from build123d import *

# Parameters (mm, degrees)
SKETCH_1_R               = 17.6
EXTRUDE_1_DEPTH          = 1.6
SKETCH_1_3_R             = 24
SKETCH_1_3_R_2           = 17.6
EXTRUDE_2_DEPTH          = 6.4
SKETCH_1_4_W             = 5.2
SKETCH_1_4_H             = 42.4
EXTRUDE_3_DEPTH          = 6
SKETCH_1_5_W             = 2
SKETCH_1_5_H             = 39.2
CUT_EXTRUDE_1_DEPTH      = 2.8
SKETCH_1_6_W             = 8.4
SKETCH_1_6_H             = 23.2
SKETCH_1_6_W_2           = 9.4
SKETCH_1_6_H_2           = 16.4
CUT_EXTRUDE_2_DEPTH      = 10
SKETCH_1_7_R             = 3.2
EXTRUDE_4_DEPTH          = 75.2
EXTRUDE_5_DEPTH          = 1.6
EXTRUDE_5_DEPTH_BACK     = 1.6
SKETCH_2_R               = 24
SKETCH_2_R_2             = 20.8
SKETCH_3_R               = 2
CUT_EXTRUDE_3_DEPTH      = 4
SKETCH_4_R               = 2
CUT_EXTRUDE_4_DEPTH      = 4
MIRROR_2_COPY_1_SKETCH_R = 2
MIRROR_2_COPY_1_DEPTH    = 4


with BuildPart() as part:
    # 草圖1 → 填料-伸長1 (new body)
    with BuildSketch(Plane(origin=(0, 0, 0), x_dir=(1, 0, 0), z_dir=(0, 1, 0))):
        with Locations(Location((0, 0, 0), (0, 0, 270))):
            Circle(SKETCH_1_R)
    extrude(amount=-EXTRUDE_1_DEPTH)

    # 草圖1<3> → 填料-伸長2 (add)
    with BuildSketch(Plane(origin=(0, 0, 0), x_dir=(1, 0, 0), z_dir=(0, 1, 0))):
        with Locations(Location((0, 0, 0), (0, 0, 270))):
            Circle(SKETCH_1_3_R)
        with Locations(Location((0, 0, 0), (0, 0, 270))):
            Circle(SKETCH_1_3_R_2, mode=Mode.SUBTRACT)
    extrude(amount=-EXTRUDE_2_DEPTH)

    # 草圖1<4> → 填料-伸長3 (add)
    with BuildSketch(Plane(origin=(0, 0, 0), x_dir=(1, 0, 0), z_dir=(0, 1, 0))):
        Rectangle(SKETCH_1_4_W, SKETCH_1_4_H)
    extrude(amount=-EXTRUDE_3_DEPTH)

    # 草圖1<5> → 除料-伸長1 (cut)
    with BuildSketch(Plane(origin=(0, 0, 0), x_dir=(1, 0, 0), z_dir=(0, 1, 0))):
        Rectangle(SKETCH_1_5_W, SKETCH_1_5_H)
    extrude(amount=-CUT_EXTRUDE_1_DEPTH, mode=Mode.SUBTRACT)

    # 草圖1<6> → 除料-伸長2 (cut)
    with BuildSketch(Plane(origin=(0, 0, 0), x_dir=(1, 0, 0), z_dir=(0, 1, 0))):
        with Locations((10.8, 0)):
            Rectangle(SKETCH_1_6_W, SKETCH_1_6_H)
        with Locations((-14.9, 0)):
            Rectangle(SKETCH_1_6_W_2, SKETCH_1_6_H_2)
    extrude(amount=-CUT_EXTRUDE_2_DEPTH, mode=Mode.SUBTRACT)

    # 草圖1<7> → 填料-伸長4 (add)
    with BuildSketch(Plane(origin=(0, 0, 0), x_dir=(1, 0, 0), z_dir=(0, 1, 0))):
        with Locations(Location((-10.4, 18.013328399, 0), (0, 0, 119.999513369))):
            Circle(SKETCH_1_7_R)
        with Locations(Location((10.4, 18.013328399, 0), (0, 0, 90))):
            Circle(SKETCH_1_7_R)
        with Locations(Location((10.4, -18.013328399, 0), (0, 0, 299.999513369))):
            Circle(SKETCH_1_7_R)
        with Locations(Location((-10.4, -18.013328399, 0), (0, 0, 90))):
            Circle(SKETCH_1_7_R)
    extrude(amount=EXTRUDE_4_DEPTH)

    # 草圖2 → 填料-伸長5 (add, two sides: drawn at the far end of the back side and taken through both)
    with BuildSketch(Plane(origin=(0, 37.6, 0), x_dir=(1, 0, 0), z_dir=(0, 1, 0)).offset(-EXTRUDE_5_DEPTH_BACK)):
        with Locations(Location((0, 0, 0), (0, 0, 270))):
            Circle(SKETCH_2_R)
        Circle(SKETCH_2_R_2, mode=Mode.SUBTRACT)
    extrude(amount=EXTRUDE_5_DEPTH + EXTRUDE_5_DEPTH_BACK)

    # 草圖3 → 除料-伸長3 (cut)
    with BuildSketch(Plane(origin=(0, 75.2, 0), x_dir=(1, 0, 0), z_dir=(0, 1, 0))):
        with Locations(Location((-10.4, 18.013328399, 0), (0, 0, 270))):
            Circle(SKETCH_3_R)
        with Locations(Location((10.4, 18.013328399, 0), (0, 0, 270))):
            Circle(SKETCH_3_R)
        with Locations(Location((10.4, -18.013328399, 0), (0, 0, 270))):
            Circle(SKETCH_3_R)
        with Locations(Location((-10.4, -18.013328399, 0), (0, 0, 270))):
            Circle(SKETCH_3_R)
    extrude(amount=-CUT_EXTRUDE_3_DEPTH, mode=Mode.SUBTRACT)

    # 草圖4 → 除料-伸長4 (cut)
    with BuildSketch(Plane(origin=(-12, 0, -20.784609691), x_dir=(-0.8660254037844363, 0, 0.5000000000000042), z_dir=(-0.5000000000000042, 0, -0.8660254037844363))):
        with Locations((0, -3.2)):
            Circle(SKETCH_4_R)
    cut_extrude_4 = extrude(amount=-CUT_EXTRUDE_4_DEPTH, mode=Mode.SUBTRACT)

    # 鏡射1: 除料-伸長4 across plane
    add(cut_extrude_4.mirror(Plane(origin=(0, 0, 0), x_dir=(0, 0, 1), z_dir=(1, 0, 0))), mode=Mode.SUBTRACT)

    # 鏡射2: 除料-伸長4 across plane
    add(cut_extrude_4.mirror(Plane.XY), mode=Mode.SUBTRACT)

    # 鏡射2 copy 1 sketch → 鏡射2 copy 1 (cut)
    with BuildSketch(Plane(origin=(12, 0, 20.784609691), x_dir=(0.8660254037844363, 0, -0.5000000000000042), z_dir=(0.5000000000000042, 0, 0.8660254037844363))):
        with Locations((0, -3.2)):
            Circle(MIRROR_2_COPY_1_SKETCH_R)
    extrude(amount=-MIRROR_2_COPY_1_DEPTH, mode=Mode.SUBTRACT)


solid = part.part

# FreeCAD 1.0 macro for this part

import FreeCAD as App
import Part
import Sketcher

V = App.Vector


def add_polygon(sketch, points):
    """Adds a closed chain of lines whose ends are joined by coincident constraints."""
    first, n = sketch.GeometryCount, len(points)
    for a, b in zip(points, points[1:] + points[:1]):
        sketch.addGeometry(Part.LineSegment(App.Vector(*a, 0), App.Vector(*b, 0)), False)
    for i in range(n):
        sketch.addConstraint(Sketcher.Constraint("Coincident", first + i, 2, first + (i + 1) % n, 1))

doc = App.newDocument("Part")
body = doc.addObject("PartDesign::Body", "Body")

# Sketch on XZ plane
sketch1 = body.newObject("Sketcher::SketchObject", "Sketch")
sketch1.AttachmentSupport = (doc.getObject("XZ_Plane"), [""])
sketch1.MapMode = "FlatFace"
sketch1.addGeometry(Part.Circle(V(0, 0, 0), V(0, 0, 1), 18), False)
sketch1.addConstraint([
    Sketcher.Constraint("Coincident", 0, 3, -1, 1),
    Sketcher.Constraint("Diameter", 0, 35.2),
])
pad1 = body.newObject("PartDesign::Pad", "Pad")
pad1.Profile = sketch1
pad1.Length = 1.6

# Sketch on XZ plane
sketch2 = body.newObject("Sketcher::SketchObject", "Sketch001")
sketch2.AttachmentSupport = (doc.getObject("XZ_Plane"), [""])
sketch2.MapMode = "FlatFace"
sketch2.addGeometry([
    Part.Circle(V(0, 0, 0), V(0, 0, 1), 24),
    Part.Circle(V(0, 0, 0), V(0, 0, 1), 18),
], False)
sketch2.addConstraint([
    Sketcher.Constraint("Coincident", 0, 3, -1, 1),
    Sketcher.Constraint("Coincident", 1, 3, -1, 1),
    Sketcher.Constraint("Diameter", 0, 48.0),
    Sketcher.Constraint("Diameter", 1, 35.2),
])
pad2 = body.newObject("PartDesign::Pad", "Pad001")
pad2.Profile = sketch2
pad2.Length = 6.4

# Sketch on XZ plane
sketch3 = body.newObject("Sketcher::SketchObject", "Sketch002")
sketch3.AttachmentSupport = (doc.getObject("XZ_Plane"), [""])
sketch3.MapMode = "FlatFace"
add_polygon(sketch3, [(-3, -21), (-3, 21), (3, 21), (3, -21)])  # lines 0-3
sketch3.addConstraint([
    Sketcher.Constraint("Vertical", 0),
    Sketcher.Constraint("Horizontal", 1),
    Sketcher.Constraint("Vertical", 2),
    Sketcher.Constraint("Horizontal", 3),
    Sketcher.Constraint("Symmetric", 0, 2, 2, 2, -1, 1),
    Sketcher.Constraint("DistanceX", 1, 1, 1, 2, 5.2),
    Sketcher.Constraint("DistanceY", 0, 1, 0, 2, 42.4),
])
pad3 = body.newObject("PartDesign::Pad", "Pad002")
pad3.Profile = sketch3
pad3.Length = 6

# Sketch on XZ plane
sketch4 = body.newObject("Sketcher::SketchObject", "Sketch003")
sketch4.AttachmentSupport = (doc.getObject("XZ_Plane"), [""])
sketch4.MapMode = "FlatFace"
add_polygon(sketch4, [(-1, -19.6), (-1, 19.6), (1, 19.6), (1, -19.6)])  # lines 0-3
sketch4.addConstraint([
    Sketcher.Constraint("Vertical", 0),
    Sketcher.Constraint("Horizontal", 1),
    Sketcher.Constraint("Vertical", 2),
    Sketcher.Constraint("Horizontal", 3),
    Sketcher.Constraint("Symmetric", 0, 2, 2, 2, -1, 1),
    Sketcher.Constraint("DistanceX", 1, 1, 1, 2, 2.0),
    Sketcher.Constraint("DistanceY", 0, 1, 0, 2, 39.2),
])
pocket1 = body.newObject("PartDesign::Pocket", "Pocket")
pocket1.Profile = sketch4
pocket1.Length = 2.8
pocket1.Reversed = True

# Sketch on XZ plane
sketch5 = body.newObject("Sketcher::SketchObject", "Sketch004")
sketch5.AttachmentSupport = (doc.getObject("XZ_Plane"), [""])
sketch5.MapMode = "FlatFace"
add_polygon(sketch5, [(7, -12), (7, 12), (15, 12), (15, -12)])  # lines 0-3
add_polygon(sketch5, [(-20, -8), (-20, 8), (-10, 8), (-10, -8)])  # lines 4-7
sketch5.addConstraint([
    Sketcher.Constraint("Vertical", 0),
    Sketcher.Constraint("Horizontal", 1),
    Sketcher.Constraint("Vertical", 2),
    Sketcher.Constraint("Horizontal", 3),
    Sketcher.Constraint("Vertical", 4),
    Sketcher.Constraint("Horizontal", 5),
    Sketcher.Constraint("Vertical", 6),
    Sketcher.Constraint("Horizontal", 7),
    Sketcher.Constraint("DistanceX", 1, 1, 1, 2, 8.4),
    Sketcher.Constraint("DistanceX", 5, 1, 5, 2, 9.4),
    Sketcher.Constraint("DistanceY", 0, 1, 0, 2, 23.2),
    Sketcher.Constraint("DistanceY", 4, 1, 4, 2, 16.4),
    Sketcher.Constraint("DistanceX", -1, 1, 1, 2, 15.0),
    Sketcher.Constraint("DistanceY", -1, 1, 0, 2, 11.6),
    Sketcher.Constraint("DistanceX", 4, 2, -1, 1, 19.6),
    Sketcher.Constraint("DistanceY", -1, 1, 4, 2, 8.2),
])
pocket2 = body.newObject("PartDesign::Pocket", "Pocket001")
pocket2.Profile = sketch5
pocket2.Length = 10
pocket2.Reversed = True

# Sketch on XZ plane
sketch6 = body.newObject("Sketcher::SketchObject", "Sketch005")
sketch6.AttachmentSupport = (doc.getObject("XZ_Plane"), [""])
sketch6.MapMode = "FlatFace"
sketch6.addGeometry([
    Part.Circle(V(-10.4, -18, 0), V(0, 0, 1), 3.2),
    Part.Circle(V(10.4, -18, 0), V(0, 0, 1), 3.2),
    Part.Circle(V(10.4, 18, 0), V(0, 0, 1), 3.2),
    Part.Circle(V(-10.4, 18, 0), V(0, 0, 1), 3.2),
], False)
sketch6.addConstraint([
    Sketcher.Constraint("Equal", 0, 1),
    Sketcher.Constraint("Equal", 1, 2),
    Sketcher.Constraint("Equal", 2, 3),
    Sketcher.Constraint("Symmetric", 0, 3, 2, 3, -1, 1),
    Sketcher.Constraint("Symmetric", 1, 3, 3, 3, -1, 1),
    Sketcher.Constraint("Symmetric", 0, 3, 1, 3, -2),
    Sketcher.Constraint("Diameter", 0, 6.4),
    Sketcher.Constraint("DistanceX", 0, 3, -1, 1, 10.4),
    Sketcher.Constraint("DistanceY", 0, 3, -1, 1, 18.013328),
])
pad4 = body.newObject("PartDesign::Pad", "Pad003")
pad4.Profile = sketch6
pad4.Length = 75.2
pad4.Reversed = True

# Sketch on XZ plane
sketch7 = body.newObject("Sketcher::SketchObject", "Sketch006")
sketch7.AttachmentSupport = (doc.getObject("XZ_Plane"), [""])
sketch7.MapMode = "FlatFace"
sketch7.AttachmentOffset = App.Placement(V(0, 0, -37.6), App.Rotation())
sketch7.addGeometry([
    Part.Circle(V(0, 0, 0), V(0, 0, 1), 24),
    Part.Circle(V(0, 0, 0), V(0, 0, 1), 21),
], False)
sketch7.addConstraint([
    Sketcher.Constraint("Coincident", 0, 3, -1, 1),
    Sketcher.Constraint("Coincident", 1, 3, -1, 1),
    Sketcher.Constraint("Diameter", 0, 48.0),
    Sketcher.Constraint("Diameter", 1, 41.6),
])
pad5 = body.newObject("PartDesign::Pad", "Pad004")
pad5.Profile = sketch7
pad5.Type = "TwoLengths"
pad5.Length = 1.6
pad5.Length2 = 1.6
pad5.Reversed = True

# Sketch on XZ plane
sketch8 = body.newObject("Sketcher::SketchObject", "Sketch007")
sketch8.AttachmentSupport = (doc.getObject("XZ_Plane"), [""])
sketch8.MapMode = "FlatFace"
sketch8.AttachmentOffset = App.Placement(V(0, 0, -75.2), App.Rotation())
sketch8.addGeometry([
    Part.Circle(V(-10.4, -18, 0), V(0, 0, 1), 2),
    Part.Circle(V(10.4, -18, 0), V(0, 0, 1), 2),
    Part.Circle(V(10.4, 18, 0), V(0, 0, 1), 2),
    Part.Circle(V(-10.4, 18, 0), V(0, 0, 1), 2),
], False)
sketch8.addConstraint([
    Sketcher.Constraint("Equal", 0, 1),
    Sketcher.Constraint("Equal", 1, 2),
    Sketcher.Constraint("Equal", 2, 3),
    Sketcher.Constraint("Symmetric", 0, 3, 2, 3, -1, 1),
    Sketcher.Constraint("Symmetric", 1, 3, 3, 3, -1, 1),
    Sketcher.Constraint("Symmetric", 0, 3, 1, 3, -2),
    Sketcher.Constraint("Diameter", 0, 4.0),
    Sketcher.Constraint("DistanceX", 0, 3, -1, 1, 10.4),
    Sketcher.Constraint("DistanceY", 0, 3, -1, 1, 18.013328),
])
pocket3 = body.newObject("PartDesign::Pocket", "Pocket002")
pocket3.Profile = sketch8
pocket3.Length = 4
pocket3.Reversed = True

# Sketch on an angled plane
sketch9 = body.newObject("Sketcher::SketchObject", "Sketch008")
sketch9.Placement = App.Placement(V(-12, 0, -20.78461), App.Rotation(V(-0.866025404, 0, 0.5), V(0, 1, 0), V(-0.5, 0, -0.866025404), "ZXY"))
sketch9.addGeometry(Part.Circle(V(0, -3.2, 0), V(0, 0, 1), 2), False)
sketch9.addConstraint([
    Sketcher.Constraint("PointOnObject", 0, 3, -2),
    Sketcher.Constraint("Diameter", 0, 4.0),
    Sketcher.Constraint("DistanceY", 0, 3, -1, 1, 3.2),
])
pocket4 = body.newObject("PartDesign::Pocket", "Pocket003")
pocket4.Profile = sketch9
pocket4.Length = 4
doc.recompute()

mirrored = body.newObject("PartDesign::Mirrored", "Mirrored")
mirrored.Originals = [pocket4]
mirrored.MirrorPlane = (doc.getObject("YZ_Plane"), [""])
body.Tip = mirrored
doc.recompute()

mirrored2 = body.newObject("PartDesign::Mirrored", "Mirrored001")
mirrored2.Originals = [pocket4]
mirrored2.MirrorPlane = (doc.getObject("XY_Plane"), [""])
body.Tip = mirrored2

# Sketch on an angled plane
sketch10 = body.newObject("Sketcher::SketchObject", "Sketch009")
sketch10.Placement = App.Placement(V(12, 0, 20.78461), App.Rotation(V(0.866025404, 0, -0.5), V(0, 1, 0), V(0.5, 0, 0.866025404), "ZXY"))
sketch10.addGeometry(Part.Circle(V(0, -3.2, 0), V(0, 0, 1), 2), False)
sketch10.addConstraint([
    Sketcher.Constraint("PointOnObject", 0, 3, -2),
    Sketcher.Constraint("Diameter", 0, 4.0),
    Sketcher.Constraint("DistanceY", 0, 3, -1, 1, 3.2),
])
pocket5 = body.newObject("PartDesign::Pocket", "Pocket004")
pocket5.Profile = sketch10
pocket5.Length = 4

doc.recompute()
